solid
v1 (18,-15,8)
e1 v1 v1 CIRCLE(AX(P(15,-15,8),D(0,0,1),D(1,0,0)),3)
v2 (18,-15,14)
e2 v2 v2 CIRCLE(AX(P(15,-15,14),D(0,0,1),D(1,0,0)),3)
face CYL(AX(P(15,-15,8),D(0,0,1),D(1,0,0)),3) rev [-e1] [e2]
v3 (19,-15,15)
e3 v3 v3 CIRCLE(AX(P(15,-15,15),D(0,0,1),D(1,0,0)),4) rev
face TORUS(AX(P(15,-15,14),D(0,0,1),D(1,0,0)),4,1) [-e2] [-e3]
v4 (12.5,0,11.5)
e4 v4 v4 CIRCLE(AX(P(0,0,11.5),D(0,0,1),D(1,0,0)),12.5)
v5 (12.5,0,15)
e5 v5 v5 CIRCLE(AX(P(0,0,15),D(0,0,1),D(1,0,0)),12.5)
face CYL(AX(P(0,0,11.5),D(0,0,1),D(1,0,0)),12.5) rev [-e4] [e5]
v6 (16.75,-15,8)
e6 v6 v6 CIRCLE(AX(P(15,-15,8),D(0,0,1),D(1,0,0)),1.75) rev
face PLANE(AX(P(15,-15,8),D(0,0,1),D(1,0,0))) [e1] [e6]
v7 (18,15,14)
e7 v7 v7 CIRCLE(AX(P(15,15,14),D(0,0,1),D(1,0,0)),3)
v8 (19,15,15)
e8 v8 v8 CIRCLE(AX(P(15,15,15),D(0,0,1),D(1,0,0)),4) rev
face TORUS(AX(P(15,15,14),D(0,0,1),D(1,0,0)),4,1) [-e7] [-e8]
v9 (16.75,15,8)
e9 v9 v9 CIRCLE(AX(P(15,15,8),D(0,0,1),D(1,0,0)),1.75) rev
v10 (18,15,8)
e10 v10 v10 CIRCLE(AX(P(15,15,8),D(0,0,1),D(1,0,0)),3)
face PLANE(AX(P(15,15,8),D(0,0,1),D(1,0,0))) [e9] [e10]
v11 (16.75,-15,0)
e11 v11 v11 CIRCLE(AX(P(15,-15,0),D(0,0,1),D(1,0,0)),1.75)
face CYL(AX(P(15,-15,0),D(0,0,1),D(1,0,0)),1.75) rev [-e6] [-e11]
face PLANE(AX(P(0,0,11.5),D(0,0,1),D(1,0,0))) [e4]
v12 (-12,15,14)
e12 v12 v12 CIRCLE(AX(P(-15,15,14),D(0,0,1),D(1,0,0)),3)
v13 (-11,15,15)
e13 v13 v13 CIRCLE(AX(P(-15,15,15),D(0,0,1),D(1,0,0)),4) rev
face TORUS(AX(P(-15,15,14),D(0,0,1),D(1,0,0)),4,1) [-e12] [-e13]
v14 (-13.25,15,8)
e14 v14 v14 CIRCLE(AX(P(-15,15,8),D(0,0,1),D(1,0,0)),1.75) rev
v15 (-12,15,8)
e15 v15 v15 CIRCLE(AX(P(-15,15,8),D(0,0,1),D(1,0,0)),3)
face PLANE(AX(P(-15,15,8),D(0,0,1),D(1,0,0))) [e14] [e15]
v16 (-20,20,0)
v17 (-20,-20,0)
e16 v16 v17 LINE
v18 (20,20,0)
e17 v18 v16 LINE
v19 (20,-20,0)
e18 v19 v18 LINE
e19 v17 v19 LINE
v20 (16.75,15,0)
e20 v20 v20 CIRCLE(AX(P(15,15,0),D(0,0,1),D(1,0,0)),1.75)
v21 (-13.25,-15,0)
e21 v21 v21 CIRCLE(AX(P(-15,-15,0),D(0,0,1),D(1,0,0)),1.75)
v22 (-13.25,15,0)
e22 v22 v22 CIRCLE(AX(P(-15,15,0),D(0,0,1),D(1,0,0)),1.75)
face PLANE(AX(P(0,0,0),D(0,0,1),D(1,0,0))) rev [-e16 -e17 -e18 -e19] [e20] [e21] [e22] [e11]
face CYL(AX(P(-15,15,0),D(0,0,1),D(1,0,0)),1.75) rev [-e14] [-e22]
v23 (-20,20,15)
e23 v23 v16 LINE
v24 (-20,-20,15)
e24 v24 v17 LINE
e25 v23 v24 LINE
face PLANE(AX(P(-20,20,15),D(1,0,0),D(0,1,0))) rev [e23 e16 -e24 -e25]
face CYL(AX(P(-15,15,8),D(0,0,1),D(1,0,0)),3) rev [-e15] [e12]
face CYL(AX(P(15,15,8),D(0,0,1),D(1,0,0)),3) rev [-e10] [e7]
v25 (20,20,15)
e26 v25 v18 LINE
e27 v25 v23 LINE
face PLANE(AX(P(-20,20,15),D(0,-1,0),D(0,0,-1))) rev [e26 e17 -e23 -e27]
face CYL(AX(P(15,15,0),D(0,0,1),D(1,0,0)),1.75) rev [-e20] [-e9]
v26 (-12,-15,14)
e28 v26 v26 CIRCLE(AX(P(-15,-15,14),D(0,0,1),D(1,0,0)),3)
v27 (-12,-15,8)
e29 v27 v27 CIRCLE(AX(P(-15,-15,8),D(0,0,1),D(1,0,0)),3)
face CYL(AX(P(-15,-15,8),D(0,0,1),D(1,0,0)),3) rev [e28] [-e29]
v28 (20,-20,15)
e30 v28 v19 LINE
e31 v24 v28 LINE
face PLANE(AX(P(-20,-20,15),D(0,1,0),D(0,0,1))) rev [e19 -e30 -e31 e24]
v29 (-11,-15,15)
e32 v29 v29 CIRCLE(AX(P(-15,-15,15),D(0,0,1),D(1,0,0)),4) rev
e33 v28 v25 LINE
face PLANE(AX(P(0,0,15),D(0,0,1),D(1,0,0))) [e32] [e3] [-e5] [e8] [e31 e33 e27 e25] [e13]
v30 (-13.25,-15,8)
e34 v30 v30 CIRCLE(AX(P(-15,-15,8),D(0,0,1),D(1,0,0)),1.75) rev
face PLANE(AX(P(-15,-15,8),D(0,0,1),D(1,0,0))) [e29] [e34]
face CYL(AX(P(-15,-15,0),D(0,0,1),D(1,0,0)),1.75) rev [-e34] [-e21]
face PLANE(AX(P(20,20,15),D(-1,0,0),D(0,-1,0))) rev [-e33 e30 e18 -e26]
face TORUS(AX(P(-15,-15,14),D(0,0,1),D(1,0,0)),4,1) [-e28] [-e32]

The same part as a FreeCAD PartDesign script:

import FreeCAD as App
import Part
import Sketcher


def edges_at(feature, points):
    """Names of the edges that pass closest to the given points."""
    edges = feature.Shape.Edges
    near = lambda p: min(range(len(edges)), key=lambda i: edges[i].distToShape(Part.Vertex(*p))[0])
    return sorted({f"Edge{near(p) + 1}" for p in points})


def add_polygon(sketch, points):
    """Adds a closed chain of lines whose ends are joined by coincident constraints."""
    first, n = sketch.GeometryCount, len(points)
    for a, b in zip(points, points[1:] + points[:1]):
        sketch.addGeometry(Part.LineSegment(App.Vector(*a, 0), App.Vector(*b, 0)), False)
    for i in range(n):
        sketch.addConstraint(Sketcher.Constraint("Coincident", first + i, 2, first + (i + 1) % n, 1))

doc = App.newDocument("Part")
body = doc.addObject("PartDesign::Body", "Body")

# Sketch on XY plane
sketch1 = body.newObject("Sketcher::SketchObject", "Sketch")
sketch1.AttachmentSupport = (doc.getObject("XY_Plane"), [""])
sketch1.MapMode = "FlatFace"
add_polygon(sketch1, [(-20, 20), (-20, -20), (20, -20), (20, 20)])  # lines 0-3
sketch1.addConstraint([
    Sketcher.Constraint("Vertical", 0),
    Sketcher.Constraint("Horizontal", 1),
    Sketcher.Constraint("Vertical", 2),
    Sketcher.Constraint("Horizontal", 3),
    Sketcher.Constraint("Symmetric", 0, 2, 2, 2, -1, 1),
    Sketcher.Constraint("Equal", 3, 0),
    Sketcher.Constraint("DistanceX", 1, 1, 1, 2, 40.0),
])
pad1 = body.newObject("PartDesign::Pad", "Pad")
pad1.Profile = sketch1
pad1.Length = 15

# Sketch on XY plane
sketch2 = body.newObject("Sketcher::SketchObject", "Sketch001")
sketch2.AttachmentSupport = (doc.getObject("XY_Plane"), [""])
sketch2.MapMode = "FlatFace"
sketch2.AttachmentOffset = App.Placement(App.Vector(0, 0, 15), App.Rotation())
sketch2.addGeometry([
    Part.Circle(App.Vector(15, 15, 0), App.Vector(0, 0, 1), 1.8),
    Part.Circle(App.Vector(15, -15, 0), App.Vector(0, 0, 1), 1.8),
    Part.Circle(App.Vector(-15, 15, 0), App.Vector(0, 0, 1), 1.8),
    Part.Circle(App.Vector(-15, -15, 0), App.Vector(0, 0, 1), 1.8),
], False)
sketch2.addConstraint([
    Sketcher.Constraint("Equal", 0, 1),
    Sketcher.Constraint("Equal", 1, 2),
    Sketcher.Constraint("Equal", 2, 3),
    Sketcher.Constraint("Symmetric", 1, 3, 2, 3, -1, 1),
    Sketcher.Constraint("Symmetric", 0, 3, 3, 3, -1, 1),
    Sketcher.Constraint("Symmetric", 0, 3, 2, 3, -2),
    Sketcher.Constraint("Diameter", 0, 3.5),
    Sketcher.Constraint("DistanceX", -1, 1, 0, 3, 15.0),
    Sketcher.Constraint("DistanceY", -1, 1, 0, 3, 15.0),
])
pocket1 = body.newObject("PartDesign::Pocket", "Pocket")
pocket1.Profile = sketch2
pocket1.Type = "ThroughAll"

# Sketch on XY plane
sketch3 = body.newObject("Sketcher::SketchObject", "Sketch002")
sketch3.AttachmentSupport = (doc.getObject("XY_Plane"), [""])
sketch3.MapMode = "FlatFace"
sketch3.AttachmentOffset = App.Placement(App.Vector(0, 0, 15), App.Rotation())
sketch3.addGeometry([
    Part.Circle(App.Vector(15, 15, 0), App.Vector(0, 0, 1), 3),
    Part.Circle(App.Vector(15, -15, 0), App.Vector(0, 0, 1), 3),
    Part.Circle(App.Vector(-15, -15, 0), App.Vector(0, 0, 1), 3),
    Part.Circle(App.Vector(-15, 15, 0), App.Vector(0, 0, 1), 3),
], False)
sketch3.addConstraint([
    Sketcher.Constraint("Equal", 0, 1),
    Sketcher.Constraint("Equal", 1, 2),
    Sketcher.Constraint("Equal", 2, 3),
    Sketcher.Constraint("Symmetric", 0, 3, 2, 3, -1, 1),
    Sketcher.Constraint("Symmetric", 1, 3, 3, 3, -1, 1),
    Sketcher.Constraint("Symmetric", 1, 3, 2, 3, -2),
    Sketcher.Constraint("Diameter", 0, 6.0),
    Sketcher.Constraint("DistanceX", -1, 1, 0, 3, 15.0),
    Sketcher.Constraint("DistanceY", -1, 1, 0, 3, 15.0),
])
pocket2 = body.newObject("PartDesign::Pocket", "Pocket001")
pocket2.Profile = sketch3
pocket2.Length = 7
doc.recompute()

fillet = body.newObject("PartDesign::Fillet", "Fillet")
fillet.Base = (pocket2, edges_at(pocket2, [
    (12, 15, 15),
    (12, -15, 15),
    (-18, -15, 15),
    (-18, 15, 15),
]))
fillet.Radius = 1

# Sketch on XY plane
sketch4 = body.newObject("Sketcher::SketchObject", "Sketch003")
sketch4.AttachmentSupport = (doc.getObject("XY_Plane"), [""])
sketch4.MapMode = "FlatFace"
sketch4.AttachmentOffset = App.Placement(App.Vector(0, 0, 15), App.Rotation())
sketch4.addGeometry(Part.Circle(App.Vector(0, 0, 0), App.Vector(0, 0, 1), 12), False)
sketch4.addConstraint([
    Sketcher.Constraint("Coincident", 0, 3, -1, 1),
    Sketcher.Constraint("Diameter", 0, 25.0),
])
pocket3 = body.newObject("PartDesign::Pocket", "Pocket002")
pocket3.Profile = sketch4
pocket3.Length = 3.5

doc.recompute()
